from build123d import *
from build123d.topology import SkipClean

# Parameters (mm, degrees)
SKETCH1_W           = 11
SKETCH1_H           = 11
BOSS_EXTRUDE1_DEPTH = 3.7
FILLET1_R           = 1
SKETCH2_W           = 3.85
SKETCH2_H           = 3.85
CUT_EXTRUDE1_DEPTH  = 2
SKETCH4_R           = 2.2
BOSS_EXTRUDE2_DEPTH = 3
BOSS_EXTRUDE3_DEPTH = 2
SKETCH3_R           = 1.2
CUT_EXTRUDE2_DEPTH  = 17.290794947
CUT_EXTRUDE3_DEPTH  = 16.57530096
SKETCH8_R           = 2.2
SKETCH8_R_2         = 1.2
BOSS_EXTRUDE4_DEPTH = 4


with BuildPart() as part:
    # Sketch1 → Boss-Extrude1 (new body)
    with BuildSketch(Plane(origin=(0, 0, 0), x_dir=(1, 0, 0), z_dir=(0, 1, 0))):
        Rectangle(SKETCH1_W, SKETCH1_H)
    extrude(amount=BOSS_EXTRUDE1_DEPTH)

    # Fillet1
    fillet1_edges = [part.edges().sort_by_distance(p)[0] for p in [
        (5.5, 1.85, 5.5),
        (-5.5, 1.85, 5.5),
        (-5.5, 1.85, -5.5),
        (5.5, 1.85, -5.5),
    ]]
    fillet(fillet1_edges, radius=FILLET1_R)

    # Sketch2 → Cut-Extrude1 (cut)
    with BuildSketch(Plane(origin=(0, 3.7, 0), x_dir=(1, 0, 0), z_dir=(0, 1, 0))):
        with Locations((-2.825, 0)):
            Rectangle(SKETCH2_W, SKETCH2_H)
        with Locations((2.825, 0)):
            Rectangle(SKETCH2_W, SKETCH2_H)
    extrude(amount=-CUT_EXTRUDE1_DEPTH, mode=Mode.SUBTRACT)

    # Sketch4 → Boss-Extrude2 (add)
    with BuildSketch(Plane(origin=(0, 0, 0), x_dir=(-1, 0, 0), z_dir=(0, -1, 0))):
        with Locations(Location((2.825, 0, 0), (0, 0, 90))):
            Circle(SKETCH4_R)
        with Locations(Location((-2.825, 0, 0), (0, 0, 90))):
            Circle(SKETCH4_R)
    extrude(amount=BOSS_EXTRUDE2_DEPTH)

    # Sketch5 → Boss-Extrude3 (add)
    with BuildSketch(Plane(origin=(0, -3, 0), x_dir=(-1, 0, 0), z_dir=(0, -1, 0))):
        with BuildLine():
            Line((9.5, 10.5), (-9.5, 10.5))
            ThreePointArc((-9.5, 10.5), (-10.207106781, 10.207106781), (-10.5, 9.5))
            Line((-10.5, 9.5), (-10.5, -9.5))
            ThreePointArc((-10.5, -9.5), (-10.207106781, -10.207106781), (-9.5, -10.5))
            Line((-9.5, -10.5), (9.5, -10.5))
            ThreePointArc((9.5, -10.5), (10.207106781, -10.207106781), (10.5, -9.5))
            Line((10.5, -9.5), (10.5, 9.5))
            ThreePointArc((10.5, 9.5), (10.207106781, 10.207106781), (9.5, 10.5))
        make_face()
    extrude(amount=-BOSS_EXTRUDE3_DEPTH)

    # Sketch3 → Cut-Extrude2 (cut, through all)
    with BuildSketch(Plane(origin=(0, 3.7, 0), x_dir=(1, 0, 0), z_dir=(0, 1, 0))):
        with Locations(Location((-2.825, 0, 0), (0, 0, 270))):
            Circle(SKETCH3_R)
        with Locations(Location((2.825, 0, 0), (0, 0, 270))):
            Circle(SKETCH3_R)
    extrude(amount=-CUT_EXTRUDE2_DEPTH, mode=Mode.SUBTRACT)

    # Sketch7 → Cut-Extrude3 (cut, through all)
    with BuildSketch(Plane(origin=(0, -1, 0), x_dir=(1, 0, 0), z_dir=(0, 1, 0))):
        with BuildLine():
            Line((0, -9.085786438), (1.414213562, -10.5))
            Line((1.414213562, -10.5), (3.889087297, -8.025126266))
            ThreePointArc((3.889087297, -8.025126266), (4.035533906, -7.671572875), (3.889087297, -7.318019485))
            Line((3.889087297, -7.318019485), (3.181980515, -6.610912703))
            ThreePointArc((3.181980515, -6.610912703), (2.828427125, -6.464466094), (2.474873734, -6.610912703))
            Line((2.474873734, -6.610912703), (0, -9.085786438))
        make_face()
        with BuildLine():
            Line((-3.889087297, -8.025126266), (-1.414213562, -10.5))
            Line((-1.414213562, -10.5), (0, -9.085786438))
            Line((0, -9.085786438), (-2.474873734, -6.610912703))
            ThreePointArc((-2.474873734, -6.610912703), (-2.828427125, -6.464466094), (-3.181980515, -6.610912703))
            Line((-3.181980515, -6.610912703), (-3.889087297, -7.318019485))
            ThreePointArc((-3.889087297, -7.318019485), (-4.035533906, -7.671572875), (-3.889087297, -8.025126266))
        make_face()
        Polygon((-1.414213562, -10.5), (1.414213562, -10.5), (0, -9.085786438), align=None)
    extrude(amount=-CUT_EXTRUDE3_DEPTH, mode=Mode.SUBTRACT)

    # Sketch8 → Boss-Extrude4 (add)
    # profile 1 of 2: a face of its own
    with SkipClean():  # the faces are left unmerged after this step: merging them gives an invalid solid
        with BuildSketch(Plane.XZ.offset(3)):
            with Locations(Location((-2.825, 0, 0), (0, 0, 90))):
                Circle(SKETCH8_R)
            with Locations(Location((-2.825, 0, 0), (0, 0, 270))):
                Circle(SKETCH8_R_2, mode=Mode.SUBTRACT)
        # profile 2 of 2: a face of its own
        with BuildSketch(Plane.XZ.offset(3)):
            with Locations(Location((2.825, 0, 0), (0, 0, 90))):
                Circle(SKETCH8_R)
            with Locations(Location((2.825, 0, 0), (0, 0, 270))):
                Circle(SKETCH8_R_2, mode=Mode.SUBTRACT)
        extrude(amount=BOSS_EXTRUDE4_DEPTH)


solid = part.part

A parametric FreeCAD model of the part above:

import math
import FreeCAD as App
import Part
import Sketcher
Q = App.Units.Quantity


def edges_at(feature, points):
    """Names of the edges that pass closest to the given points."""
    edges = feature.Shape.Edges
    near = lambda p: min(range(len(edges)), key=lambda i: edges[i].distToShape(Part.Vertex(*p))[0])
    return sorted({f"Edge{near(p) + 1}" for p in points})


def add_polygon(sketch, points):
    """Adds a closed chain of lines whose ends are joined by coincident constraints."""
    first, n = sketch.GeometryCount, len(points)
    for a, b in zip(points, points[1:] + points[:1]):
        sketch.addGeometry(Part.LineSegment(App.Vector(*a, 0), App.Vector(*b, 0)), False)
    for i in range(n):
        sketch.addConstraint(Sketcher.Constraint("Coincident", first + i, 2, first + (i + 1) % n, 1))

doc = App.newDocument("Part")
params = doc.addObject("Spreadsheet::Sheet", "Params")
for row, (alias, value) in enumerate([
    ("sketch1_width", "11 mm"),
    ("pad1_length", "3.7 mm"),
    ("fillet_radius", "1 mm"),
    ("sketch2_width", "3.85 mm"),
    ("pocket1_length", "2 mm"),
    ("sketch3_diameter", "4.4 mm"),
    ("pad2_length", "3 mm"),
    ("sketch4_radius", "1 mm"),
    ("sketch4_width", "19 mm"),
    ("pad3_length", "2 mm"),
    ("sketch5_diameter", "2.4 mm"),
    ("sketch6_radius", "0.5 mm"),
    ("sketch6_length", "1 mm"),
    ("sketch6_length2", "3.5 mm"),
    ("sketch7_diameter", "4.4 mm"),
    ("sketch7_diameter2", "2.4 mm"),
    ("pad4_length", "4 mm"),
], start=1):
    params.set(f"A{row}", alias)
    params.set(f"B{row}", "=" + value)
    params.setAlias(f"B{row}", alias)

body = doc.addObject("PartDesign::Body", "Body")

# Sketch on XZ plane
sketch1 = body.newObject("Sketcher::SketchObject", "Sketch")
sketch1.AttachmentSupport = (doc.getObject("XZ_Plane"), [""])
sketch1.MapMode = "FlatFace"
add_polygon(sketch1, [(-6, -6), (-6, 6), (6, 6), (6, -6)])  # lines 0-3
sketch1.addConstraint(Sketcher.Constraint("Vertical", 0))
sketch1.addConstraint(Sketcher.Constraint("Horizontal", 1))
sketch1.addConstraint(Sketcher.Constraint("Vertical", 2))
sketch1.addConstraint(Sketcher.Constraint("Horizontal", 3))
sketch1.addConstraint(Sketcher.Constraint("Symmetric", 0, 2, 2, 2, -1, 1))
sketch1.addConstraint(Sketcher.Constraint("Equal", 3, 0))
sketch1.addConstraint(Sketcher.Constraint("DistanceX", 1, 1, 1, 2, Q("11 mm")))
sketch1.setExpression("Constraints[10]", "Params.sketch1_width")
pad1 = body.newObject("PartDesign::Pad", "Pad")
pad1.Profile = sketch1
pad1.setExpression("Length", "Params.pad1_length")
pad1.Reversed = True
doc.recompute()

fillet = body.newObject("PartDesign::Fillet", "Fillet")
fillet.Base = (pad1, edges_at(pad1, [
    (5.5, 1.85, 5.5),
    (-5.5, 1.85, 5.5),
    (-5.5, 1.85, -5.5),
    (5.5, 1.85, -5.5),
]))
fillet.setExpression("Radius", "Params.fillet_radius")

# Sketch on XZ plane
sketch2 = body.newObject("Sketcher::SketchObject", "Sketch001")
sketch2.AttachmentSupport = (doc.getObject("XZ_Plane"), [""])
sketch2.MapMode = "FlatFace"
sketch2.AttachmentOffset = App.Placement(App.Vector(0, 0, -3.7), App.Rotation())
add_polygon(sketch2, [(-4.8, -1.9), (-4.8, 1.9), (-0.9, 1.9), (-0.9, -1.9)])  # lines 0-3
add_polygon(sketch2, [(0.9, -1.9), (0.9, 1.9), (4.8, 1.9), (4.8, -1.9)])  # lines 4-7
sketch2.addConstraint(Sketcher.Constraint("Vertical", 0))
sketch2.addConstraint(Sketcher.Constraint("Horizontal", 1))
sketch2.addConstraint(Sketcher.Constraint("Vertical", 2))
sketch2.addConstraint(Sketcher.Constraint("Horizontal", 3))
sketch2.addConstraint(Sketcher.Constraint("Vertical", 4))
sketch2.addConstraint(Sketcher.Constraint("Horizontal", 5))
sketch2.addConstraint(Sketcher.Constraint("Vertical", 6))
sketch2.addConstraint(Sketcher.Constraint("Horizontal", 7))
sketch2.addConstraint(Sketcher.Constraint("Symmetric", 2, 2, 4, 2, -1, 1))
sketch2.addConstraint(Sketcher.Constraint("Symmetric", 0, 2, 6, 2, -1, 1))
sketch2.addConstraint(Sketcher.Constraint("Horizontal", 1, 2, 4, 2))
sketch2.addConstraint(Sketcher.Constraint("Equal", 7, 0))
sketch2.addConstraint(Sketcher.Constraint("DistanceX", 1, 1, 1, 2, Q("3.85 mm")))
sketch2.addConstraint(Sketcher.Constraint("DistanceX", 1, 2, -1, 1, Q("0.9 mm")))
sketch2.setExpression("Constraints[20]", "Params.sketch2_width")
pocket1 = body.newObject("PartDesign::Pocket", "Pocket")
pocket1.Profile = sketch2
pocket1.setExpression("Length", "Params.pocket1_length")
pocket1.Reversed = True

# Sketch on XZ plane
sketch3 = body.newObject("Sketcher::SketchObject", "Sketch002")
sketch3.AttachmentSupport = (doc.getObject("XZ_Plane"), [""])
sketch3.MapMode = "FlatFace"
sketch3.addGeometry(Part.Circle(App.Vector(-2.8, 0, 0), App.Vector(0, 0, 1), 2.2), False)
sketch3.addGeometry(Part.Circle(App.Vector(2.8, 0, 0), App.Vector(0, 0, 1), 2.2), False)
sketch3.addConstraint(Sketcher.Constraint("Equal", 0, 1))
sketch3.addConstraint(Sketcher.Constraint("Symmetric", 0, 3, 1, 3, -1, 1))
sketch3.addConstraint(Sketcher.Constraint("PointOnObject", 0, 3, -1))
sketch3.addConstraint(Sketcher.Constraint("Diameter", 0, Q("4.4 mm")))
sketch3.addConstraint(Sketcher.Constraint("DistanceX", 0, 3, 1, 3, Q("5.65 mm")))
sketch3.setExpression("Constraints[3]", "Params.sketch3_diameter")
pad2 = body.newObject("PartDesign::Pad", "Pad001")
pad2.Profile = sketch3
pad2.setExpression("Length", "Params.pad2_length")

# Sketch on XZ plane
sketch4 = body.newObject("Sketcher::SketchObject", "Sketch003")
sketch4.AttachmentSupport = (doc.getObject("XZ_Plane"), [""])
sketch4.MapMode = "FlatFace"
sketch4.AttachmentOffset = App.Placement(App.Vector(0, 0, 3), App.Rotation())
sketch4.addGeometry(Part.LineSegment(App.Vector(-9.5, -10.5, 0), App.Vector(9.5, -10.5, 0)), False)
sketch4.addGeometry(Part.ArcOfCircle(Part.Circle(App.Vector(9.5, -9.5, 0), App.Vector(0, 0, 1), 1), math.radians(-90), math.radians(0)), False)
sketch4.addGeometry(Part.LineSegment(App.Vector(10.5, -9.5, 0), App.Vector(10.5, 9.5, 0)), False)
sketch4.addGeometry(Part.ArcOfCircle(Part.Circle(App.Vector(9.5, 9.5, 0), App.Vector(0, 0, 1), 1), math.radians(0), math.radians(90)), False)
sketch4.addGeometry(Part.LineSegment(App.Vector(9.5, 10.5, 0), App.Vector(-9.5, 10.5, 0)), False)
sketch4.addGeometry(Part.ArcOfCircle(Part.Circle(App.Vector(-9.5, 9.5, 0), App.Vector(0, 0, 1), 1), math.radians(90), math.radians(180)), False)
sketch4.addGeometry(Part.LineSegment(App.Vector(-10.5, 9.5, 0), App.Vector(-10.5, -9.5, 0)), False)
sketch4.addGeometry(Part.ArcOfCircle(Part.Circle(App.Vector(-9.5, -9.5, 0), App.Vector(0, 0, 1), 1), math.radians(-180), math.radians(-90)), False)
sketch4.addConstraint(Sketcher.Constraint("Tangent", 0, 2, 1, 1))
sketch4.addConstraint(Sketcher.Constraint("Tangent", 1, 2, 2, 1))
sketch4.addConstraint(Sketcher.Constraint("Tangent", 2, 2, 3, 1))
sketch4.addConstraint(Sketcher.Constraint("Tangent", 3, 2, 4, 1))
sketch4.addConstraint(Sketcher.Constraint("Tangent", 4, 2, 5, 1))
sketch4.addConstraint(Sketcher.Constraint("Tangent", 5, 2, 6, 1))
sketch4.addConstraint(Sketcher.Constraint("Tangent", 6, 2, 7, 1))
sketch4.addConstraint(Sketcher.Constraint("Tangent", 7, 2, 0, 1))
sketch4.addConstraint(Sketcher.Constraint("Horizontal", 0))
sketch4.addConstraint(Sketcher.Constraint("Vertical", 2))
sketch4.addConstraint(Sketcher.Constraint("Horizontal", 4))
sketch4.addConstraint(Sketcher.Constraint("Vertical", 6))
sketch4.addConstraint(Sketcher.Constraint("Equal", 1, 3))
sketch4.addConstraint(Sketcher.Constraint("Equal", 3, 5))
sketch4.addConstraint(Sketcher.Constraint("Equal", 5, 7))
sketch4.addConstraint(Sketcher.Constraint("Symmetric", 1, 3, 5, 3, -1, 1))
sketch4.addConstraint(Sketcher.Constraint("Equal", 4, 2))
sketch4.addConstraint(Sketcher.Constraint("Radius", 1, Q("1 mm")))
sketch4.addConstraint(Sketcher.Constraint("DistanceX", 0, 1, 0, 2, Q("19 mm")))
sketch4.setExpression("Constraints[17]", "Params.sketch4_radius")
sketch4.setExpression("Constraints[18]", "Params.sketch4_width")
pad3 = body.newObject("PartDesign::Pad", "Pad002")
pad3.Profile = sketch4
pad3.setExpression("Length", "Params.pad3_length")
pad3.Reversed = True

# Sketch on XZ plane
sketch5 = body.newObject("Sketcher::SketchObject", "Sketch004")
sketch5.AttachmentSupport = (doc.getObject("XZ_Plane"), [""])
sketch5.MapMode = "FlatFace"
sketch5.AttachmentOffset = App.Placement(App.Vector(0, 0, -3.7), App.Rotation())
sketch5.addGeometry(Part.Circle(App.Vector(-2.8, 0, 0), App.Vector(0, 0, 1), 1.2), False)
sketch5.addGeometry(Part.Circle(App.Vector(2.8, 0, 0), App.Vector(0, 0, 1), 1.2), False)
sketch5.addConstraint(Sketcher.Constraint("Equal", 0, 1))
sketch5.addConstraint(Sketcher.Constraint("Symmetric", 0, 3, 1, 3, -1, 1))
sketch5.addConstraint(Sketcher.Constraint("PointOnObject", 0, 3, -1))
sketch5.addConstraint(Sketcher.Constraint("Diameter", 0, Q("2.4 mm")))
sketch5.addConstraint(Sketcher.Constraint("DistanceX", 0, 3, 1, 3, Q("5.65 mm")))
sketch5.setExpression("Constraints[3]", "Params.sketch5_diameter")
pocket2 = body.newObject("PartDesign::Pocket", "Pocket001")
pocket2.Profile = sketch5
pocket2.Type = "ThroughAll"
pocket2.Reversed = True

# Sketch on XZ plane
sketch6 = body.newObject("Sketcher::SketchObject", "Sketch005")
sketch6.AttachmentSupport = (doc.getObject("XZ_Plane"), [""])
sketch6.MapMode = "FlatFace"
sketch6.AttachmentOffset = App.Placement(App.Vector(0, 0, 1), App.Rotation())
sketch6.addGeometry(Part.LineSegment(App.Vector(1.4, 10.5, 0), App.Vector(3.9, 8, 0)), False)
sketch6.addGeometry(Part.ArcOfCircle(Part.Circle(App.Vector(3.5, 7.7, 0), App.Vector(0, 0, 1), 0.5), math.radians(-45), math.radians(45)), False)
sketch6.addGeometry(Part.LineSegment(App.Vector(3.9, 7.3, 0), App.Vector(3.2, 6.6, 0)), False)
sketch6.addGeometry(Part.ArcOfCircle(Part.Circle(App.Vector(2.8, 7, 0), App.Vector(0, 0, 1), 0.5), math.radians(-135), math.radians(-45)), False)
sketch6.addGeometry(Part.LineSegment(App.Vector(2.5, 6.6, 0), App.Vector(0, 9.1, 0)), False)
sketch6.addGeometry(Part.LineSegment(App.Vector(0, 9.1, 0), App.Vector(-2.5, 6.6, 0)), False)
sketch6.addGeometry(Part.ArcOfCircle(Part.Circle(App.Vector(-2.8, 7, 0), App.Vector(0, 0, 1), 0.5), math.radians(-135), math.radians(-45)), False)
sketch6.addGeometry(Part.LineSegment(App.Vector(-3.2, 6.6, 0), App.Vector(-3.9, 7.3, 0)), False)
sketch6.addGeometry(Part.ArcOfCircle(Part.Circle(App.Vector(-3.5, 7.7, 0), App.Vector(0, 0, 1), 0.5), math.radians(135), math.radians(225)), False)
sketch6.addGeometry(Part.LineSegment(App.Vector(-3.9, 8, 0), App.Vector(-1.4, 10.5, 0)), False)
sketch6.addGeometry(Part.LineSegment(App.Vector(-1.4, 10.5, 0), App.Vector(1.4, 10.5, 0)), False)
sketch6.addConstraint(Sketcher.Constraint("Tangent", 0, 2, 1, 2))
sketch6.addConstraint(Sketcher.Constraint("Tangent", 1, 1, 2, 1))
sketch6.addConstraint(Sketcher.Constraint("Tangent", 2, 2, 3, 2))
sketch6.addConstraint(Sketcher.Constraint("Tangent", 3, 1, 4, 1))
sketch6.addConstraint(Sketcher.Constraint("Coincident", 4, 2, 5, 1))
sketch6.addConstraint(Sketcher.Constraint("Tangent", 5, 2, 6, 2))
sketch6.addConstraint(Sketcher.Constraint("Tangent", 6, 1, 7, 1))
sketch6.addConstraint(Sketcher.Constraint("Tangent", 7, 2, 8, 2))
sketch6.addConstraint(Sketcher.Constraint("Tangent", 8, 1, 9, 1))
sketch6.addConstraint(Sketcher.Constraint("Coincident", 9, 2, 10, 1))
sketch6.addConstraint(Sketcher.Constraint("Coincident", 10, 2, 0, 1))
sketch6.addConstraint(Sketcher.Constraint("Horizontal", 10))
sketch6.addConstraint(Sketcher.Constraint("Equal", 1, 3))
sketch6.addConstraint(Sketcher.Constraint("Equal", 3, 6))
sketch6.addConstraint(Sketcher.Constraint("Equal", 6, 8))
sketch6.addConstraint(Sketcher.Constraint("Symmetric", 3, 3, 6, 3, -2))
sketch6.addConstraint(Sketcher.Constraint("Symmetric", 1, 3, 8, 3, -2))
sketch6.addConstraint(Sketcher.Constraint("PointOnObject", 4, 2, -2))
sketch6.addConstraint(Sketcher.Constraint("Perpendicular", 0, 2))
sketch6.addConstraint(Sketcher.Constraint("Perpendicular", 2, 4))
sketch6.addConstraint(Sketcher.Constraint("Perpendicular", 4, 5))
sketch6.addConstraint(Sketcher.Constraint("Perpendicular", 7, 9))
sketch6.addConstraint(Sketcher.Constraint("Equal", 0, 4))
sketch6.addConstraint(Sketcher.Constraint("Radius", 1, Q("0.5 mm")))
sketch6.addConstraint(Sketcher.Constraint("Distance", 2, Q("1 mm")))
sketch6.addConstraint(Sketcher.Constraint("Distance", 0, Q("3.5 mm")))
sketch6.addConstraint(Sketcher.Constraint("DistanceY", -1, 1, 9, 2, Q("10.5 mm")))
sketch6.setExpression("Constraints[23]", "Params.sketch6_radius")
sketch6.setExpression("Constraints[24]", "Params.sketch6_length")
sketch6.setExpression("Constraints[25]", "Params.sketch6_length2")
pocket3 = body.newObject("PartDesign::Pocket", "Pocket002")
pocket3.Profile = sketch6
pocket3.Type = "ThroughAll"
pocket3.Reversed = True

# Sketch on XZ plane
sketch7 = body.newObject("Sketcher::SketchObject", "Sketch006")
sketch7.AttachmentSupport = (doc.getObject("XZ_Plane"), [""])
sketch7.MapMode = "FlatFace"
sketch7.AttachmentOffset = App.Placement(App.Vector(0, 0, 3), App.Rotation())
sketch7.addGeometry(Part.Circle(App.Vector(-2.8, 0, 0), App.Vector(0, 0, 1), 2.2), False)
sketch7.addGeometry(Part.Circle(App.Vector(-2.8, 0, 0), App.Vector(0, 0, 1), 1.2), False)
sketch7.addGeometry(Part.Circle(App.Vector(2.8, 0, 0), App.Vector(0, 0, 1), 2.2), False)
sketch7.addGeometry(Part.Circle(App.Vector(2.8, 0, 0), App.Vector(0, 0, 1), 1.2), False)
sketch7.addConstraint(Sketcher.Constraint("Coincident", 1, 3, 0, 3))
sketch7.addConstraint(Sketcher.Constraint("Coincident", 3, 3, 2, 3))
sketch7.addConstraint(Sketcher.Constraint("Equal", 0, 2))
sketch7.addConstraint(Sketcher.Constraint("Equal", 1, 3))
sketch7.addConstraint(Sketcher.Constraint("Symmetric", 0, 3, 2, 3, -1, 1))
sketch7.addConstraint(Sketcher.Constraint("PointOnObject", 0, 3, -1))
sketch7.addConstraint(Sketcher.Constraint("Diameter", 0, Q("4.4 mm")))
sketch7.addConstraint(Sketcher.Constraint("Diameter", 1, Q("2.4 mm")))
sketch7.addConstraint(Sketcher.Constraint("DistanceX", 0, 3, 2, 3, Q("5.65 mm")))
sketch7.setExpression("Constraints[6]", "Params.sketch7_diameter")
sketch7.setExpression("Constraints[7]", "Params.sketch7_diameter2")
pad4 = body.newObject("PartDesign::Pad", "Pad003")
pad4.Profile = sketch7
pad4.setExpression("Length", "Params.pad4_length")

doc.recompute()
